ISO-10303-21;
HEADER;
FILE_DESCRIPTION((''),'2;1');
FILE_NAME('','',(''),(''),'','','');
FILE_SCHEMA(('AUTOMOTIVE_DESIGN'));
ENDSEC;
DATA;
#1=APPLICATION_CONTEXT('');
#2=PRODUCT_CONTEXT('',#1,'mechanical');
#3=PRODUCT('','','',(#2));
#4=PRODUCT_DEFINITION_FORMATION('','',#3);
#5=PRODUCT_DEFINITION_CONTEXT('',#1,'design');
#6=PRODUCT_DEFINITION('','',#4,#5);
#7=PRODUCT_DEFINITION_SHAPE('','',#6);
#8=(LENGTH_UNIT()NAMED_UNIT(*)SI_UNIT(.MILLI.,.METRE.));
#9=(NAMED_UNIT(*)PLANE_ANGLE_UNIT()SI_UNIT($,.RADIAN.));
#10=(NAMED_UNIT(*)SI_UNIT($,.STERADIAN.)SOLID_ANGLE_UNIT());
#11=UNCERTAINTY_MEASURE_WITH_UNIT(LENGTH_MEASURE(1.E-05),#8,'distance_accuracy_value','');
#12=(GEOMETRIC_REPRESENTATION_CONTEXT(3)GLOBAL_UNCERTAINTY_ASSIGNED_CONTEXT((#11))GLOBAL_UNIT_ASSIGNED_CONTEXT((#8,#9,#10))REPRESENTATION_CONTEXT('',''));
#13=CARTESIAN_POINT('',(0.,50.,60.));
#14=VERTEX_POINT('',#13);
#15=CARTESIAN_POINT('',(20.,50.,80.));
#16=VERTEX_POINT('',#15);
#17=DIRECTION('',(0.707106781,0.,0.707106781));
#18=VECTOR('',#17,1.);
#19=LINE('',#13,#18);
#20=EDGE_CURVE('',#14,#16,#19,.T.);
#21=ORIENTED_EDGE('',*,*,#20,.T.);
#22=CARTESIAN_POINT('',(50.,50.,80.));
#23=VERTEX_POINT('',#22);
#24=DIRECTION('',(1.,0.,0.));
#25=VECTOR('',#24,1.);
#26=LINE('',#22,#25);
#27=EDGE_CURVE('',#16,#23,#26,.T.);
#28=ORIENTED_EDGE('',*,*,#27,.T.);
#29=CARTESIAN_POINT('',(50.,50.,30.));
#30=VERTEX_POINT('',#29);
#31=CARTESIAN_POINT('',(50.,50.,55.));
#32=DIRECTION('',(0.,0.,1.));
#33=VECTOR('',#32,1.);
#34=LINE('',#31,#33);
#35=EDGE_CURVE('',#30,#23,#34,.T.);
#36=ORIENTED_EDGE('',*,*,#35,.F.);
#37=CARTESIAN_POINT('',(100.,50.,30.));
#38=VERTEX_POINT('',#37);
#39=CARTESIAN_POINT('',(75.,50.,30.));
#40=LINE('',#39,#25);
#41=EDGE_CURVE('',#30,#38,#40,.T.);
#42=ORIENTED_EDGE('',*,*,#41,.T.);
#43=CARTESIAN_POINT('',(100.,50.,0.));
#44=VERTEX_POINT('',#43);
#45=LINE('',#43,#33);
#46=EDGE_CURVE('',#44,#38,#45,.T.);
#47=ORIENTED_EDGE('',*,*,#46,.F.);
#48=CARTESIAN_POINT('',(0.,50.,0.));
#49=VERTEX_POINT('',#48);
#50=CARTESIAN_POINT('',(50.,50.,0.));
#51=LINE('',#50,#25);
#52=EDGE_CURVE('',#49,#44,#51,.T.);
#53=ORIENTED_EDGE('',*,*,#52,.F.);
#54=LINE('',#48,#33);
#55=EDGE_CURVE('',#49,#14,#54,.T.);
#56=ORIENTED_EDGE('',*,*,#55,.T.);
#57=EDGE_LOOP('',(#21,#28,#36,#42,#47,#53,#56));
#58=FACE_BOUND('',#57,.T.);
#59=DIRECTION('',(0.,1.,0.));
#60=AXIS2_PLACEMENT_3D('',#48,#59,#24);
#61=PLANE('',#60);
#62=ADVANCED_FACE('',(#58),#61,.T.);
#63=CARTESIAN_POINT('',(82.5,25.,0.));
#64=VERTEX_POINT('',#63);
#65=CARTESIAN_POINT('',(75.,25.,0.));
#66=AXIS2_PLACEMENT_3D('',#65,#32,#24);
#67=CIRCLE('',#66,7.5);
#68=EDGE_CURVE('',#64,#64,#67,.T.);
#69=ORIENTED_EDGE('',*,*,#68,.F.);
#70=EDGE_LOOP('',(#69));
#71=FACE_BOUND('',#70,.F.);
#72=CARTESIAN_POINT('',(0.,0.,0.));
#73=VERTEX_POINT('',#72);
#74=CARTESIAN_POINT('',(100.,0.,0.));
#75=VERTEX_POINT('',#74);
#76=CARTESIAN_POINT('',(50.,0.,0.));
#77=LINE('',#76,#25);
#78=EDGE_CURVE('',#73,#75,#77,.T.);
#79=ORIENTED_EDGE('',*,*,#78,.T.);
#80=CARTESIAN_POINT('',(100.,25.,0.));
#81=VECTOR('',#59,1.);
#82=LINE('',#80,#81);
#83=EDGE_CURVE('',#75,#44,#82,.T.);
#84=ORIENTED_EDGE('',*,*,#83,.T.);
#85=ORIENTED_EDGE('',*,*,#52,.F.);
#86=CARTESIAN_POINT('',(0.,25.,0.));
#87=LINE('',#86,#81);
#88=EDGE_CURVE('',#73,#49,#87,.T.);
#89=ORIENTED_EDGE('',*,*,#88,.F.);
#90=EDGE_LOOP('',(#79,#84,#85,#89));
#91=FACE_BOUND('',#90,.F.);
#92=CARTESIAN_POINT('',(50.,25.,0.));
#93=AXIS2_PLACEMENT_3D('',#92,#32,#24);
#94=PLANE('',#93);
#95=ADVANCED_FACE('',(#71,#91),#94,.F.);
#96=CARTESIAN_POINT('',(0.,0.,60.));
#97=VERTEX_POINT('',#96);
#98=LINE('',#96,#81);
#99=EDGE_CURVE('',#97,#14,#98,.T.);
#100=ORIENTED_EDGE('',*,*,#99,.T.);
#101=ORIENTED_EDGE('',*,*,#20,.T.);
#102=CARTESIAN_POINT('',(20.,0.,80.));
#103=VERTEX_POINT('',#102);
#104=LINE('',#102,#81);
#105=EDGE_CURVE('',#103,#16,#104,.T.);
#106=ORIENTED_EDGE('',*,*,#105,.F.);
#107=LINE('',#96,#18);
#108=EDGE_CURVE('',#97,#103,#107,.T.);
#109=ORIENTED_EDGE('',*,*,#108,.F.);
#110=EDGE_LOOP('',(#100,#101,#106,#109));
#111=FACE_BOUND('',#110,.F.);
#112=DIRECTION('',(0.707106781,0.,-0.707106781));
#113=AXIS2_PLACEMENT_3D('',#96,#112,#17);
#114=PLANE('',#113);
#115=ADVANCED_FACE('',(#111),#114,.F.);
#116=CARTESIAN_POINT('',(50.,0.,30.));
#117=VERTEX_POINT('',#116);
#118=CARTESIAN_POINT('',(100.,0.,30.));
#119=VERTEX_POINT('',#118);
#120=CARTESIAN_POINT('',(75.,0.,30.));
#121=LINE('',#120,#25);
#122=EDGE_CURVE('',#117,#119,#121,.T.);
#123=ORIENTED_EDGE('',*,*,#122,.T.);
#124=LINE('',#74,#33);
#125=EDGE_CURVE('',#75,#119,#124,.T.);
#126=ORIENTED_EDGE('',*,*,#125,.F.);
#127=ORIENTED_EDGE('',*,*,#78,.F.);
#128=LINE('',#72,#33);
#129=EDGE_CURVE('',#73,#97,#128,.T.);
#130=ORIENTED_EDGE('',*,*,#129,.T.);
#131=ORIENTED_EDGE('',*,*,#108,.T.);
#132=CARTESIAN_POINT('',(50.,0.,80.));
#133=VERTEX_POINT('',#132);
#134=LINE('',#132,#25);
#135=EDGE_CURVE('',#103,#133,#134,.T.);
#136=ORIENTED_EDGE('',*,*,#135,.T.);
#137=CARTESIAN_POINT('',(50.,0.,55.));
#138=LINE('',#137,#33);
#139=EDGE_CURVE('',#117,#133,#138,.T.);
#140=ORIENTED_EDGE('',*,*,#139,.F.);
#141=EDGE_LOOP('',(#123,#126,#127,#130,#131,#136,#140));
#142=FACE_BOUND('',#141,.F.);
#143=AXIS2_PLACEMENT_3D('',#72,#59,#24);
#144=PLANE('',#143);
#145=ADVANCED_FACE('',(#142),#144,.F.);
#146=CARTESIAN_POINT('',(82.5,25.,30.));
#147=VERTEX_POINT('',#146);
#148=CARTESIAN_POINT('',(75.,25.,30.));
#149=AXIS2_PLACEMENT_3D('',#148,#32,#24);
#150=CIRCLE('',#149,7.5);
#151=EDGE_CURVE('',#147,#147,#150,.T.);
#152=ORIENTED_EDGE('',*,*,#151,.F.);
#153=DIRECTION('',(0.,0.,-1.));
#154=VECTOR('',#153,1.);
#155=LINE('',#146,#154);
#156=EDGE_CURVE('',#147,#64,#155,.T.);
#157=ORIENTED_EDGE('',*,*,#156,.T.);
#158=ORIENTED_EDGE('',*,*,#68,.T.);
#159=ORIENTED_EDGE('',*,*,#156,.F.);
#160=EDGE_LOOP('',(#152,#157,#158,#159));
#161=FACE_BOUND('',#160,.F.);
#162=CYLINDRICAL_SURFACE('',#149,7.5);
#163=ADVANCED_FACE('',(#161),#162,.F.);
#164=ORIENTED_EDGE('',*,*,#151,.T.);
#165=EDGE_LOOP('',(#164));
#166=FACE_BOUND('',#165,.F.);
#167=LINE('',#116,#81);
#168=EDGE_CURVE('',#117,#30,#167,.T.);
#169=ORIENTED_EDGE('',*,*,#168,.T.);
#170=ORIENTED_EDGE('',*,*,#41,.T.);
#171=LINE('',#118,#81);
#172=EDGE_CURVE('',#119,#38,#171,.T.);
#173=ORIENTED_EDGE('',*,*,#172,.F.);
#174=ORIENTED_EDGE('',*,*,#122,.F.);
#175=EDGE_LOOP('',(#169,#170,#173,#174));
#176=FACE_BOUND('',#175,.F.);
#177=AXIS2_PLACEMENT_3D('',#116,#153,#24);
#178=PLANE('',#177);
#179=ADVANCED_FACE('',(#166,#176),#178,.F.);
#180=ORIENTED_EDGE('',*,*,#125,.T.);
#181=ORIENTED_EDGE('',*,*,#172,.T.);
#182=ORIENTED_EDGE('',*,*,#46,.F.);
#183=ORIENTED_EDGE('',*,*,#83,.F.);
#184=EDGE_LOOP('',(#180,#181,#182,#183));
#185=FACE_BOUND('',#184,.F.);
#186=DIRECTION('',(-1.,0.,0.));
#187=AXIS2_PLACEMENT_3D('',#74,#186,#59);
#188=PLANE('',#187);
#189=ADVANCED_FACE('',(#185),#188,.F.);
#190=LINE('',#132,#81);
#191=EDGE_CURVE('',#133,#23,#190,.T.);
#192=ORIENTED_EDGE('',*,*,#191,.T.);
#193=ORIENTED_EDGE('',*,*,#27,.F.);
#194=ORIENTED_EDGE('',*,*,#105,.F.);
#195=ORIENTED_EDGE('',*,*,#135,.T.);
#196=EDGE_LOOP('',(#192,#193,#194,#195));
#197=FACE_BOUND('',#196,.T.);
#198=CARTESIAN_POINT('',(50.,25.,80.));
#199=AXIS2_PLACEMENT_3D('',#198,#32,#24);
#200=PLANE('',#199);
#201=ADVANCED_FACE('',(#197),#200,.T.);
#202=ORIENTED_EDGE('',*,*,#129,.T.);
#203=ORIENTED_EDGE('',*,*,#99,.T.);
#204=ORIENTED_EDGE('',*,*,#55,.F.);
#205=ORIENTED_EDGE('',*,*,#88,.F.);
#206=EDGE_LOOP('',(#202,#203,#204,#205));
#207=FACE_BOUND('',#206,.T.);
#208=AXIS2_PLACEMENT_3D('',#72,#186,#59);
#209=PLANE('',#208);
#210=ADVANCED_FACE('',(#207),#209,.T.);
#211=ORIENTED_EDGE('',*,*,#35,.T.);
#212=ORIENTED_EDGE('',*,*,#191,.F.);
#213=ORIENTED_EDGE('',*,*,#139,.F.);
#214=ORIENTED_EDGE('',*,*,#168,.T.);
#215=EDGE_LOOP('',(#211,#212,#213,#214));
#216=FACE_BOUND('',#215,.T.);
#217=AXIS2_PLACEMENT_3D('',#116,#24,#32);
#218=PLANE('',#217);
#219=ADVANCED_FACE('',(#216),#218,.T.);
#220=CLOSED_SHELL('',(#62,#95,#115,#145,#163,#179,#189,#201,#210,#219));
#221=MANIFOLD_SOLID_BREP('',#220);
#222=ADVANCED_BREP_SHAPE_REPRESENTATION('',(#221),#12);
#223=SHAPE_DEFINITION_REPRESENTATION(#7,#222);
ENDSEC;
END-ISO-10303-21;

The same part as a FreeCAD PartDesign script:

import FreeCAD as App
import Part
import Sketcher

doc = App.newDocument("Part")
params = doc.addObject("Spreadsheet::Sheet", "Params")
for row, (alias, value) in enumerate([
    ("sketch1_width", "100 mm"),
    ("sketch1_height", "50 mm"),
    ("pad1_length", "80 mm"),
    ("sketch2_width", "50 mm"),
    ("sketch3_width", "20 mm"),
    ("sketch4_diameter", "15 mm"),
], start=1):
    params.set(f"A{row}", alias)
    params.set(f"B{row}", "=" + value)
    params.setAlias(f"B{row}", alias)

body = doc.addObject("PartDesign::Body", "Body")

sketch1 = body.newObject("Sketcher::SketchObject", "Sketch")
sketch1.AttachmentSupport = (doc.getObject("XY_Plane"), [""])
sketch1.MapMode = "FlatFace"
sketch1.addGeometry([
    Part.LineSegment(App.Vector(0, 50, 0), App.Vector(0, 0, 0)),
    Part.LineSegment(App.Vector(0, 0, 0), App.Vector(100, 0, 0)),
    Part.LineSegment(App.Vector(100, 0, 0), App.Vector(100, 50, 0)),
    Part.LineSegment(App.Vector(100, 50, 0), App.Vector(0, 50, 0)),
], False)
sketch1.addConstraint([
    Sketcher.Constraint("Coincident", 0, 2, 1, 1),
    Sketcher.Constraint("Coincident", 1, 2, 2, 1),
    Sketcher.Constraint("Coincident", 2, 2, 3, 1),
    Sketcher.Constraint("Coincident", 3, 2, 0, 1),
    Sketcher.Constraint("Vertical", 0),
    Sketcher.Constraint("Horizontal", 1),
    Sketcher.Constraint("Vertical", 2),
    Sketcher.Constraint("Horizontal", 3),
    Sketcher.Constraint("Coincident", 0, 2, -1, 1),
    Sketcher.Constraint("DistanceX", 1, 1, 1, 2, 100.0),
    Sketcher.Constraint("DistanceY", 0, 2, 0, 1, 50.0),
])
sketch1.setExpression("Constraints[9]", "Params.sketch1_width")
sketch1.setExpression("Constraints[10]", "Params.sketch1_height")
pad1 = body.newObject("PartDesign::Pad", "Pad")
pad1.Profile = sketch1
pad1.setExpression("Length", "Params.pad1_length")

sketch2 = body.newObject("Sketcher::SketchObject", "Sketch001")
sketch2.AttachmentSupport = (doc.getObject("XZ_Plane"), [""])
sketch2.MapMode = "FlatFace"
sketch2.addGeometry([
    Part.LineSegment(App.Vector(50, 80, 0), App.Vector(50, 30, 0)),
    Part.LineSegment(App.Vector(50, 30, 0), App.Vector(100, 30, 0)),
    Part.LineSegment(App.Vector(100, 30, 0), App.Vector(100, 80, 0)),
    Part.LineSegment(App.Vector(100, 80, 0), App.Vector(50, 80, 0)),
], False)
sketch2.addConstraint([
    Sketcher.Constraint("Coincident", 0, 2, 1, 1),
    Sketcher.Constraint("Coincident", 1, 2, 2, 1),
    Sketcher.Constraint("Coincident", 2, 2, 3, 1),
    Sketcher.Constraint("Coincident", 3, 2, 0, 1),
    Sketcher.Constraint("Vertical", 0),
    Sketcher.Constraint("Horizontal", 1),
    Sketcher.Constraint("Vertical", 2),
    Sketcher.Constraint("Horizontal", 3),
    Sketcher.Constraint("Equal", 3, 0),
    Sketcher.Constraint("DistanceX", 1, 1, 1, 2, 50.0),
    Sketcher.Constraint("DistanceX", -1, 1, 0, 2, 50.0),
    Sketcher.Constraint("DistanceY", -1, 1, 0, 2, 30.0),
])
sketch2.setExpression("Constraints[9]", "Params.sketch2_width")
pocket1 = body.newObject("PartDesign::Pocket", "Pocket")
pocket1.Profile = sketch2
pocket1.Type = "ThroughAll"

sketch3 = body.newObject("Sketcher::SketchObject", "Sketch002")
sketch3.AttachmentSupport = (doc.getObject("XZ_Plane"), [""])
sketch3.MapMode = "FlatFace"
sketch3.addGeometry([
    Part.LineSegment(App.Vector(20, 80, 0), App.Vector(0, 80, 0)),
    Part.LineSegment(App.Vector(0, 80, 0), App.Vector(0, 60, 0)),
    Part.LineSegment(App.Vector(0, 60, 0), App.Vector(20, 80, 0)),
], False)
sketch3.addConstraint([
    Sketcher.Constraint("Coincident", 0, 2, 1, 1),
    Sketcher.Constraint("Coincident", 1, 2, 2, 1),
    Sketcher.Constraint("Coincident", 2, 2, 0, 1),
    Sketcher.Constraint("Horizontal", 0),
    Sketcher.Constraint("Vertical", 1),
    Sketcher.Constraint("PointOnObject", 0, 2, -2),
    Sketcher.Constraint("Equal", 0, 1),
    Sketcher.Constraint("DistanceX", 0, 2, 0, 1, 20.0),
    Sketcher.Constraint("DistanceY", -1, 1, 0, 2, 80.0),
])
sketch3.setExpression("Constraints[7]", "Params.sketch3_width")
pocket2 = body.newObject("PartDesign::Pocket", "Pocket001")
pocket2.Profile = sketch3
pocket2.Type = "ThroughAll"

sketch4 = body.newObject("Sketcher::SketchObject", "Sketch003")
sketch4.AttachmentSupport = (doc.getObject("XY_Plane"), [""])
sketch4.MapMode = "FlatFace"
sketch4.AttachmentOffset = App.Placement(App.Vector(0, 0, 30), App.Rotation())
sketch4.addGeometry(Part.Circle(App.Vector(75, 25, 0), App.Vector(0, 0, 1), 8), False)
sketch4.addConstraint([
    Sketcher.Constraint("Diameter", 0, 15.0),
    Sketcher.Constraint("DistanceX", -1, 1, 0, 3, 75.0),
    Sketcher.Constraint("DistanceY", -1, 1, 0, 3, 25.0),
])
sketch4.setExpression("Constraints[0]", "Params.sketch4_diameter")
pocket3 = body.newObject("PartDesign::Pocket", "Pocket002")
pocket3.Profile = sketch4
pocket3.Type = "ThroughAll"

doc.recompute()
